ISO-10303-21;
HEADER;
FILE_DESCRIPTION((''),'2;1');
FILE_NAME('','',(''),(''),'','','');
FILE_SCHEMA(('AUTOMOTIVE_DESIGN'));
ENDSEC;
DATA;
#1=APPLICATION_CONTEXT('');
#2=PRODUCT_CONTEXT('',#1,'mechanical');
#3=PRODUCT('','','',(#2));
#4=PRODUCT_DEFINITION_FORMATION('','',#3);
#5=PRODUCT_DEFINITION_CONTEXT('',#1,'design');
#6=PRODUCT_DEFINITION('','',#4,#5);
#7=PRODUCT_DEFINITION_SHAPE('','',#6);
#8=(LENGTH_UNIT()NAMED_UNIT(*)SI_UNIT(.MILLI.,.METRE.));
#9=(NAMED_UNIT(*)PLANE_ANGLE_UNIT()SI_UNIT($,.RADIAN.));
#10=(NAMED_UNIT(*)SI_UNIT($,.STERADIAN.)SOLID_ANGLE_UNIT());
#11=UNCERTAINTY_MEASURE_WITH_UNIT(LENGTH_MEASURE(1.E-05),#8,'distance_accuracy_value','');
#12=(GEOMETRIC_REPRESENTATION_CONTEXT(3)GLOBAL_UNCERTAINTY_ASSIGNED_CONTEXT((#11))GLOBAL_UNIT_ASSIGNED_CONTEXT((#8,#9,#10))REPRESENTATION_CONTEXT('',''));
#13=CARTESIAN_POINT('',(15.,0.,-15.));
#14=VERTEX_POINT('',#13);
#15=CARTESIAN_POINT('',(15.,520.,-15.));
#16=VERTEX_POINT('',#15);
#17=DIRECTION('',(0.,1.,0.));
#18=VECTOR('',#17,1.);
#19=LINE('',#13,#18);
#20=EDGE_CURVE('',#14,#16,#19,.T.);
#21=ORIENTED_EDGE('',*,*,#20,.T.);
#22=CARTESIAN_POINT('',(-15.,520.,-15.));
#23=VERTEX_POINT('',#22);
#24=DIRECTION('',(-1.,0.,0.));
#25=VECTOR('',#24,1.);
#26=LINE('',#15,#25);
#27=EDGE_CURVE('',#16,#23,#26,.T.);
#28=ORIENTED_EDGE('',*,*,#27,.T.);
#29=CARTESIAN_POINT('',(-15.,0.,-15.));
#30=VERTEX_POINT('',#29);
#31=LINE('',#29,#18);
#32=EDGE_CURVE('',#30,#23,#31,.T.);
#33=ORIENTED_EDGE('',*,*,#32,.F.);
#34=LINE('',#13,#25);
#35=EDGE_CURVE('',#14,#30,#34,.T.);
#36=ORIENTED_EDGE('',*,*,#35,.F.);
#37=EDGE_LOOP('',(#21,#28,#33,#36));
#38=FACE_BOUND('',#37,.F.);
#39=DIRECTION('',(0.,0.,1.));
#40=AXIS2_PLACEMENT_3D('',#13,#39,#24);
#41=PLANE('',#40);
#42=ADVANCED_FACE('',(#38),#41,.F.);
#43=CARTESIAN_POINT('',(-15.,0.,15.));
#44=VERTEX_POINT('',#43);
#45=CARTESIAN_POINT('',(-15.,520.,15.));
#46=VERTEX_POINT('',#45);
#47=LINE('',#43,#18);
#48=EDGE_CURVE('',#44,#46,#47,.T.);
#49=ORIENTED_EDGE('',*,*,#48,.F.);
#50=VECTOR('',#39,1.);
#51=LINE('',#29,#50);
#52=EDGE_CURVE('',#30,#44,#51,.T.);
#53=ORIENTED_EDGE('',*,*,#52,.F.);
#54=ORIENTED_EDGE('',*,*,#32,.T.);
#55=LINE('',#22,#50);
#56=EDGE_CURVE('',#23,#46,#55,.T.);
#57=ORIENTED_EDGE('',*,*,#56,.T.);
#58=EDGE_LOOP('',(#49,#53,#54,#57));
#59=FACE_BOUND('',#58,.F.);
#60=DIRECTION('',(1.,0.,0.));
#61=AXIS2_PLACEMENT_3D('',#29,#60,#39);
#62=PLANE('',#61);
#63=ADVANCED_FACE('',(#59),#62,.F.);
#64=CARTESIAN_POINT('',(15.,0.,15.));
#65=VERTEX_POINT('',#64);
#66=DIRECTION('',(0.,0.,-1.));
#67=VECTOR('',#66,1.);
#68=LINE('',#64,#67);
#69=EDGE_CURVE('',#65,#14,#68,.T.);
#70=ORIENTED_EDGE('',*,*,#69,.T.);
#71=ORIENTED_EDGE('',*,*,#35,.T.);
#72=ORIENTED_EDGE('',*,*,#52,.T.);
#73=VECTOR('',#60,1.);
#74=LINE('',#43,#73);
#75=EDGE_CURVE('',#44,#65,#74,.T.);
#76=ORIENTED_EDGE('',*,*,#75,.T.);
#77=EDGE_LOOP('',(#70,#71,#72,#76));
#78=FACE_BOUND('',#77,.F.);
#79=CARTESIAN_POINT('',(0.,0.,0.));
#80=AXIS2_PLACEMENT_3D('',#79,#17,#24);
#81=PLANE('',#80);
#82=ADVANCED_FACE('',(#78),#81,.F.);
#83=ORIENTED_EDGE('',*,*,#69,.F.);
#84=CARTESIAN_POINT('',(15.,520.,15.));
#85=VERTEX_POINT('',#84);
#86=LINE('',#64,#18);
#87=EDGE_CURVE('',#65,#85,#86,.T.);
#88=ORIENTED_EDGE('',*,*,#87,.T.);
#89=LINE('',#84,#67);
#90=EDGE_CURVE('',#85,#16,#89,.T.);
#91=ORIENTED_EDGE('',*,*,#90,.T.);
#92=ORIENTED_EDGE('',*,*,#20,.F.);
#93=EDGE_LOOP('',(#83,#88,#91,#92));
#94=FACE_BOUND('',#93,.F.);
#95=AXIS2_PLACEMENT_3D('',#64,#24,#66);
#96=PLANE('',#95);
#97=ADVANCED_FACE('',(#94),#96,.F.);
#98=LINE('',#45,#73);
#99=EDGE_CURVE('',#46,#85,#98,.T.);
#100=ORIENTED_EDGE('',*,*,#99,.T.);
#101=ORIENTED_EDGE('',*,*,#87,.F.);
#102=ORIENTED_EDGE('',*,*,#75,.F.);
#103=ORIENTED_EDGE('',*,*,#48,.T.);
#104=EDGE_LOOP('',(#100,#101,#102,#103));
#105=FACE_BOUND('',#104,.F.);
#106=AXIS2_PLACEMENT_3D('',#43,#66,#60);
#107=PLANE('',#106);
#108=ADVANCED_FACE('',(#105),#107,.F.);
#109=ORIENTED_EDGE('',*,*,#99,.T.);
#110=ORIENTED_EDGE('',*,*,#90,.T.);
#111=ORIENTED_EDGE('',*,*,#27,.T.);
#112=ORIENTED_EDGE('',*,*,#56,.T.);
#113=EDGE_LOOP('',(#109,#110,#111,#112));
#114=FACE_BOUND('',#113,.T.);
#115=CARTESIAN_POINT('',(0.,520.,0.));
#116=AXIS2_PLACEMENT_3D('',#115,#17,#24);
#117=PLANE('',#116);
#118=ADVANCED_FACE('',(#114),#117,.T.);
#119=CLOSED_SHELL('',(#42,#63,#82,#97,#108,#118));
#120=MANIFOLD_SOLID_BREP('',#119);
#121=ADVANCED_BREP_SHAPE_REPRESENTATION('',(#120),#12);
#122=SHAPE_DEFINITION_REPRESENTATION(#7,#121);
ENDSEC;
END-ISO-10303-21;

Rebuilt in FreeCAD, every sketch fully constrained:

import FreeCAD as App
import Part
import Sketcher

V = App.Vector
Q = App.Units.Quantity

doc = App.newDocument("Part")
body = doc.addObject("PartDesign::Body", "Body")

# Sketch on XZ plane
sketch1 = body.newObject("Sketcher::SketchObject", "Sketch")
sketch1.AttachmentSupport = (doc.getObject("XZ_Plane"), [""])
sketch1.MapMode = "FlatFace"
sketch1.addGeometry(Part.LineSegment(V(15, 15, 0), V(15, -15, 0)), False)
sketch1.addGeometry(Part.LineSegment(V(15, -15, 0), V(-15, -15, 0)), False)
sketch1.addGeometry(Part.LineSegment(V(-15, -15, 0), V(-15, 15, 0)), False)
sketch1.addGeometry(Part.LineSegment(V(-15, 15, 0), V(15, 15, 0)), False)
sketch1.addConstraint(Sketcher.Constraint("Coincident", 0, 2, 1, 1))
sketch1.addConstraint(Sketcher.Constraint("Coincident", 1, 2, 2, 1))
sketch1.addConstraint(Sketcher.Constraint("Coincident", 2, 2, 3, 1))
sketch1.addConstraint(Sketcher.Constraint("Coincident", 3, 2, 0, 1))
sketch1.addConstraint(Sketcher.Constraint("Vertical", 0))
sketch1.addConstraint(Sketcher.Constraint("Horizontal", 1))
sketch1.addConstraint(Sketcher.Constraint("Vertical", 2))
sketch1.addConstraint(Sketcher.Constraint("Horizontal", 3))
sketch1.addConstraint(Sketcher.Constraint("Symmetric", 0, 2, 2, 2, -1, 1))
sketch1.addConstraint(Sketcher.Constraint("Equal", 3, 0))
sketch1.addConstraint(Sketcher.Constraint("DistanceX", 1, 2, 1, 1, Q("30 mm")))
pad1 = body.newObject("PartDesign::Pad", "Pad")
pad1.Profile = sketch1
pad1.Length = 520
pad1.Reversed = True

doc.recompute()
